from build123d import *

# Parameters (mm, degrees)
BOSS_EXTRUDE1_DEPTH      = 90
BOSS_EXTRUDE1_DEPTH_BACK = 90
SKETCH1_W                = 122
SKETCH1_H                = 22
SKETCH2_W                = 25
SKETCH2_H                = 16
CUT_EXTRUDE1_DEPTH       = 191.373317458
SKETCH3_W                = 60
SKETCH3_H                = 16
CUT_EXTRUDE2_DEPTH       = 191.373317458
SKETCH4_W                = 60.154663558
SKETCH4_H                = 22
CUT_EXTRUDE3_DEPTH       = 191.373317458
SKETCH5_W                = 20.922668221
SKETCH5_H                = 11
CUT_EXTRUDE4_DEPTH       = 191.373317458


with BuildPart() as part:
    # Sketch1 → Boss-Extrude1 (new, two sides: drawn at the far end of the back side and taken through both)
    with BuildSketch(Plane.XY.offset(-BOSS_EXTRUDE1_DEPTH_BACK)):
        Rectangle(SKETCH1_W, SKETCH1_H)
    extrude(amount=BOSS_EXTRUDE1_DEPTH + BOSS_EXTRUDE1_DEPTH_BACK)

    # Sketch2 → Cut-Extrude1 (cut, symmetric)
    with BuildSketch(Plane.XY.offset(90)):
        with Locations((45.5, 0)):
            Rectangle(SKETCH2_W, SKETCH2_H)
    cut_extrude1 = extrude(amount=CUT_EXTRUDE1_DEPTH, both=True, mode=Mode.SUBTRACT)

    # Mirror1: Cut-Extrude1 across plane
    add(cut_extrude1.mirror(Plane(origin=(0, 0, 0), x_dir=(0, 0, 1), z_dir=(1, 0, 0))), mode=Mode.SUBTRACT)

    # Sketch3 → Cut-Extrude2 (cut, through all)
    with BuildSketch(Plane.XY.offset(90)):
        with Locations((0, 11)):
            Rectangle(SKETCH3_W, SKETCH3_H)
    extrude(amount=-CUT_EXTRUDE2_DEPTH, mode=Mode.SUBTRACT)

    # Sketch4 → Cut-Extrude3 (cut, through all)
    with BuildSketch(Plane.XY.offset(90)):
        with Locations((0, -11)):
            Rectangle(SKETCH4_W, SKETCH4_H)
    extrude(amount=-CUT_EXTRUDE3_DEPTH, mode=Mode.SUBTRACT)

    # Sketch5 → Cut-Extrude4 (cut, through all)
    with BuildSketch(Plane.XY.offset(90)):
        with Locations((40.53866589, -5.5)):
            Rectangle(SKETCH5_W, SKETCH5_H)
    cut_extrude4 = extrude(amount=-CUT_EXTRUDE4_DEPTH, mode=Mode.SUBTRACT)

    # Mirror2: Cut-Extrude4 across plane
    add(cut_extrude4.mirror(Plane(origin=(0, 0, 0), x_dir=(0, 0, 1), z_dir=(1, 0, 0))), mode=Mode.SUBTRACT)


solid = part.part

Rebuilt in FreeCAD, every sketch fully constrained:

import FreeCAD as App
import Part
import Sketcher


def add_polygon(sketch, points):
    """Adds a closed chain of lines whose ends are joined by coincident constraints."""
    first, n = sketch.GeometryCount, len(points)
    for a, b in zip(points, points[1:] + points[:1]):
        sketch.addGeometry(Part.LineSegment(App.Vector(*a, 0), App.Vector(*b, 0)), False)
    for i in range(n):
        sketch.addConstraint(Sketcher.Constraint("Coincident", first + i, 2, first + (i + 1) % n, 1))

doc = App.newDocument("Part")
params = doc.addObject("Spreadsheet::Sheet", "Params")
for row, (alias, value) in enumerate([
    ("sketch1_width", "122 mm"),
    ("sketch1_height", "22 mm"),
    ("pad1_length", "90 mm"),
    ("pad1_length2", "90 mm"),
    ("sketch2_width", "25 mm"),
    ("sketch2_height", "16 mm"),
    ("pocket1_length", "382.746635 mm"),
    ("sketch3_width", "60 mm"),
    ("sketch3_height", "16 mm"),
    ("sketch4_height", "22 mm"),
    ("sketch5_height", "11 mm"),
], start=1):
    params.set(f"A{row}", alias)
    params.set(f"B{row}", "=" + value)
    params.setAlias(f"B{row}", alias)

body = doc.addObject("PartDesign::Body", "Body")

# Sketch on XY plane
sketch1 = body.newObject("Sketcher::SketchObject", "Sketch")
sketch1.AttachmentSupport = (doc.getObject("XY_Plane"), [""])
sketch1.MapMode = "FlatFace"
add_polygon(sketch1, [(-61, 11), (-61, -11), (61, -11), (61, 11)])  # lines 0-3
sketch1.addConstraint([
    Sketcher.Constraint("Vertical", 0),
    Sketcher.Constraint("Horizontal", 1),
    Sketcher.Constraint("Vertical", 2),
    Sketcher.Constraint("Horizontal", 3),
    Sketcher.Constraint("Symmetric", 0, 2, 2, 2, -1, 1),
    Sketcher.Constraint("DistanceX", 1, 1, 1, 2, 122.0),
    Sketcher.Constraint("DistanceY", 0, 2, 0, 1, 22.0),
])
sketch1.setExpression("Constraints[9]", "Params.sketch1_width")
sketch1.setExpression("Constraints[10]", "Params.sketch1_height")
pad1 = body.newObject("PartDesign::Pad", "Pad")
pad1.Profile = sketch1
pad1.Type = "TwoLengths"
pad1.setExpression("Length", "Params.pad1_length")
pad1.setExpression("Length2", "Params.pad1_length2")

# Sketch on XY plane
sketch2 = body.newObject("Sketcher::SketchObject", "Sketch001")
sketch2.AttachmentSupport = (doc.getObject("XY_Plane"), [""])
sketch2.MapMode = "FlatFace"
sketch2.AttachmentOffset = App.Placement(App.Vector(0, 0, 90), App.Rotation())
add_polygon(sketch2, [(33, 8), (33, -8), (58, -8), (58, 8)])  # lines 0-3
sketch2.addConstraint([
    Sketcher.Constraint("Vertical", 0),
    Sketcher.Constraint("Horizontal", 1),
    Sketcher.Constraint("Vertical", 2),
    Sketcher.Constraint("Horizontal", 3),
    Sketcher.Constraint("DistanceX", 1, 1, 1, 2, 25.0),
    Sketcher.Constraint("DistanceY", 0, 2, 0, 1, 16.0),
    Sketcher.Constraint("DistanceX", -1, 1, 0, 2, 33.0),
    Sketcher.Constraint("DistanceY", 0, 2, -1, 1, 8.0),
])
sketch2.setExpression("Constraints[8]", "Params.sketch2_width")
sketch2.setExpression("Constraints[9]", "Params.sketch2_height")
pocket1 = body.newObject("PartDesign::Pocket", "Pocket")
pocket1.Profile = sketch2
pocket1.setExpression("Length", "Params.pocket1_length")
pocket1.Midplane = True
doc.recompute()

mirrored = body.newObject("PartDesign::Mirrored", "Mirrored")
mirrored.Originals = [pocket1]
mirrored.MirrorPlane = (doc.getObject("YZ_Plane"), [""])
body.Tip = mirrored

# Sketch on XY plane
sketch3 = body.newObject("Sketcher::SketchObject", "Sketch002")
sketch3.AttachmentSupport = (doc.getObject("XY_Plane"), [""])
sketch3.MapMode = "FlatFace"
sketch3.AttachmentOffset = App.Placement(App.Vector(0, 0, 90), App.Rotation())
add_polygon(sketch3, [(-30, 19), (-30, 3), (30, 3), (30, 19)])  # lines 0-3
sketch3.addConstraint([
    Sketcher.Constraint("Vertical", 0),
    Sketcher.Constraint("Horizontal", 1),
    Sketcher.Constraint("Vertical", 2),
    Sketcher.Constraint("Horizontal", 3),
    Sketcher.Constraint("DistanceX", 1, 1, 1, 2, 60.0),
    Sketcher.Constraint("DistanceY", 0, 2, 0, 1, 16.0),
    Sketcher.Constraint("DistanceX", 0, 2, -1, 1, 30.0),
    Sketcher.Constraint("DistanceY", -1, 1, 0, 2, 3.0),
])
sketch3.setExpression("Constraints[8]", "Params.sketch3_width")
sketch3.setExpression("Constraints[9]", "Params.sketch3_height")
pocket2 = body.newObject("PartDesign::Pocket", "Pocket001")
pocket2.Profile = sketch3
pocket2.Type = "ThroughAll"

# Sketch on XY plane
sketch4 = body.newObject("Sketcher::SketchObject", "Sketch003")
sketch4.AttachmentSupport = (doc.getObject("XY_Plane"), [""])
sketch4.MapMode = "FlatFace"
sketch4.AttachmentOffset = App.Placement(App.Vector(0, 0, 90), App.Rotation())
add_polygon(sketch4, [(-30, 0), (-30, -22), (30, -22), (30, 0)])  # lines 0-3
sketch4.addConstraint([
    Sketcher.Constraint("Vertical", 0),
    Sketcher.Constraint("Horizontal", 1),
    Sketcher.Constraint("Vertical", 2),
    Sketcher.Constraint("Horizontal", 3),
    Sketcher.Constraint("Symmetric", 2, 2, 3, 2, -1, 1),
    Sketcher.Constraint("DistanceY", 0, 2, 0, 1, 22.0),
    Sketcher.Constraint("DistanceX", 1, 1, 1, 2, 60.154664),
])
sketch4.setExpression("Constraints[9]", "Params.sketch4_height")
pocket3 = body.newObject("PartDesign::Pocket", "Pocket002")
pocket3.Profile = sketch4
pocket3.Type = "ThroughAll"

# Sketch on XY plane
sketch5 = body.newObject("Sketcher::SketchObject", "Sketch004")
sketch5.AttachmentSupport = (doc.getObject("XY_Plane"), [""])
sketch5.MapMode = "FlatFace"
sketch5.AttachmentOffset = App.Placement(App.Vector(0, 0, 90), App.Rotation())
add_polygon(sketch5, [(30, 0), (30, -11), (51, -11), (51, 0)])  # lines 0-3
sketch5.addConstraint([
    Sketcher.Constraint("Vertical", 0),
    Sketcher.Constraint("Horizontal", 1),
    Sketcher.Constraint("Vertical", 2),
    Sketcher.Constraint("Horizontal", 3),
    Sketcher.Constraint("PointOnObject", 2, 2, -1),
    Sketcher.Constraint("DistanceY", 0, 2, 0, 1, 11.0),
    Sketcher.Constraint("DistanceX", -1, 1, 1, 2, 51.0),
    Sketcher.Constraint("DistanceX", 1, 1, 1, 2, 20.922668),
])
sketch5.setExpression("Constraints[9]", "Params.sketch5_height")
pocket4 = body.newObject("PartDesign::Pocket", "Pocket003")
pocket4.Profile = sketch5
pocket4.Type = "ThroughAll"
doc.recompute()

mirrored2 = body.newObject("PartDesign::Mirrored", "Mirrored001")
mirrored2.Originals = [pocket4]
mirrored2.MirrorPlane = (doc.getObject("YZ_Plane"), [""])
body.Tip = mirrored2

doc.recompute()
